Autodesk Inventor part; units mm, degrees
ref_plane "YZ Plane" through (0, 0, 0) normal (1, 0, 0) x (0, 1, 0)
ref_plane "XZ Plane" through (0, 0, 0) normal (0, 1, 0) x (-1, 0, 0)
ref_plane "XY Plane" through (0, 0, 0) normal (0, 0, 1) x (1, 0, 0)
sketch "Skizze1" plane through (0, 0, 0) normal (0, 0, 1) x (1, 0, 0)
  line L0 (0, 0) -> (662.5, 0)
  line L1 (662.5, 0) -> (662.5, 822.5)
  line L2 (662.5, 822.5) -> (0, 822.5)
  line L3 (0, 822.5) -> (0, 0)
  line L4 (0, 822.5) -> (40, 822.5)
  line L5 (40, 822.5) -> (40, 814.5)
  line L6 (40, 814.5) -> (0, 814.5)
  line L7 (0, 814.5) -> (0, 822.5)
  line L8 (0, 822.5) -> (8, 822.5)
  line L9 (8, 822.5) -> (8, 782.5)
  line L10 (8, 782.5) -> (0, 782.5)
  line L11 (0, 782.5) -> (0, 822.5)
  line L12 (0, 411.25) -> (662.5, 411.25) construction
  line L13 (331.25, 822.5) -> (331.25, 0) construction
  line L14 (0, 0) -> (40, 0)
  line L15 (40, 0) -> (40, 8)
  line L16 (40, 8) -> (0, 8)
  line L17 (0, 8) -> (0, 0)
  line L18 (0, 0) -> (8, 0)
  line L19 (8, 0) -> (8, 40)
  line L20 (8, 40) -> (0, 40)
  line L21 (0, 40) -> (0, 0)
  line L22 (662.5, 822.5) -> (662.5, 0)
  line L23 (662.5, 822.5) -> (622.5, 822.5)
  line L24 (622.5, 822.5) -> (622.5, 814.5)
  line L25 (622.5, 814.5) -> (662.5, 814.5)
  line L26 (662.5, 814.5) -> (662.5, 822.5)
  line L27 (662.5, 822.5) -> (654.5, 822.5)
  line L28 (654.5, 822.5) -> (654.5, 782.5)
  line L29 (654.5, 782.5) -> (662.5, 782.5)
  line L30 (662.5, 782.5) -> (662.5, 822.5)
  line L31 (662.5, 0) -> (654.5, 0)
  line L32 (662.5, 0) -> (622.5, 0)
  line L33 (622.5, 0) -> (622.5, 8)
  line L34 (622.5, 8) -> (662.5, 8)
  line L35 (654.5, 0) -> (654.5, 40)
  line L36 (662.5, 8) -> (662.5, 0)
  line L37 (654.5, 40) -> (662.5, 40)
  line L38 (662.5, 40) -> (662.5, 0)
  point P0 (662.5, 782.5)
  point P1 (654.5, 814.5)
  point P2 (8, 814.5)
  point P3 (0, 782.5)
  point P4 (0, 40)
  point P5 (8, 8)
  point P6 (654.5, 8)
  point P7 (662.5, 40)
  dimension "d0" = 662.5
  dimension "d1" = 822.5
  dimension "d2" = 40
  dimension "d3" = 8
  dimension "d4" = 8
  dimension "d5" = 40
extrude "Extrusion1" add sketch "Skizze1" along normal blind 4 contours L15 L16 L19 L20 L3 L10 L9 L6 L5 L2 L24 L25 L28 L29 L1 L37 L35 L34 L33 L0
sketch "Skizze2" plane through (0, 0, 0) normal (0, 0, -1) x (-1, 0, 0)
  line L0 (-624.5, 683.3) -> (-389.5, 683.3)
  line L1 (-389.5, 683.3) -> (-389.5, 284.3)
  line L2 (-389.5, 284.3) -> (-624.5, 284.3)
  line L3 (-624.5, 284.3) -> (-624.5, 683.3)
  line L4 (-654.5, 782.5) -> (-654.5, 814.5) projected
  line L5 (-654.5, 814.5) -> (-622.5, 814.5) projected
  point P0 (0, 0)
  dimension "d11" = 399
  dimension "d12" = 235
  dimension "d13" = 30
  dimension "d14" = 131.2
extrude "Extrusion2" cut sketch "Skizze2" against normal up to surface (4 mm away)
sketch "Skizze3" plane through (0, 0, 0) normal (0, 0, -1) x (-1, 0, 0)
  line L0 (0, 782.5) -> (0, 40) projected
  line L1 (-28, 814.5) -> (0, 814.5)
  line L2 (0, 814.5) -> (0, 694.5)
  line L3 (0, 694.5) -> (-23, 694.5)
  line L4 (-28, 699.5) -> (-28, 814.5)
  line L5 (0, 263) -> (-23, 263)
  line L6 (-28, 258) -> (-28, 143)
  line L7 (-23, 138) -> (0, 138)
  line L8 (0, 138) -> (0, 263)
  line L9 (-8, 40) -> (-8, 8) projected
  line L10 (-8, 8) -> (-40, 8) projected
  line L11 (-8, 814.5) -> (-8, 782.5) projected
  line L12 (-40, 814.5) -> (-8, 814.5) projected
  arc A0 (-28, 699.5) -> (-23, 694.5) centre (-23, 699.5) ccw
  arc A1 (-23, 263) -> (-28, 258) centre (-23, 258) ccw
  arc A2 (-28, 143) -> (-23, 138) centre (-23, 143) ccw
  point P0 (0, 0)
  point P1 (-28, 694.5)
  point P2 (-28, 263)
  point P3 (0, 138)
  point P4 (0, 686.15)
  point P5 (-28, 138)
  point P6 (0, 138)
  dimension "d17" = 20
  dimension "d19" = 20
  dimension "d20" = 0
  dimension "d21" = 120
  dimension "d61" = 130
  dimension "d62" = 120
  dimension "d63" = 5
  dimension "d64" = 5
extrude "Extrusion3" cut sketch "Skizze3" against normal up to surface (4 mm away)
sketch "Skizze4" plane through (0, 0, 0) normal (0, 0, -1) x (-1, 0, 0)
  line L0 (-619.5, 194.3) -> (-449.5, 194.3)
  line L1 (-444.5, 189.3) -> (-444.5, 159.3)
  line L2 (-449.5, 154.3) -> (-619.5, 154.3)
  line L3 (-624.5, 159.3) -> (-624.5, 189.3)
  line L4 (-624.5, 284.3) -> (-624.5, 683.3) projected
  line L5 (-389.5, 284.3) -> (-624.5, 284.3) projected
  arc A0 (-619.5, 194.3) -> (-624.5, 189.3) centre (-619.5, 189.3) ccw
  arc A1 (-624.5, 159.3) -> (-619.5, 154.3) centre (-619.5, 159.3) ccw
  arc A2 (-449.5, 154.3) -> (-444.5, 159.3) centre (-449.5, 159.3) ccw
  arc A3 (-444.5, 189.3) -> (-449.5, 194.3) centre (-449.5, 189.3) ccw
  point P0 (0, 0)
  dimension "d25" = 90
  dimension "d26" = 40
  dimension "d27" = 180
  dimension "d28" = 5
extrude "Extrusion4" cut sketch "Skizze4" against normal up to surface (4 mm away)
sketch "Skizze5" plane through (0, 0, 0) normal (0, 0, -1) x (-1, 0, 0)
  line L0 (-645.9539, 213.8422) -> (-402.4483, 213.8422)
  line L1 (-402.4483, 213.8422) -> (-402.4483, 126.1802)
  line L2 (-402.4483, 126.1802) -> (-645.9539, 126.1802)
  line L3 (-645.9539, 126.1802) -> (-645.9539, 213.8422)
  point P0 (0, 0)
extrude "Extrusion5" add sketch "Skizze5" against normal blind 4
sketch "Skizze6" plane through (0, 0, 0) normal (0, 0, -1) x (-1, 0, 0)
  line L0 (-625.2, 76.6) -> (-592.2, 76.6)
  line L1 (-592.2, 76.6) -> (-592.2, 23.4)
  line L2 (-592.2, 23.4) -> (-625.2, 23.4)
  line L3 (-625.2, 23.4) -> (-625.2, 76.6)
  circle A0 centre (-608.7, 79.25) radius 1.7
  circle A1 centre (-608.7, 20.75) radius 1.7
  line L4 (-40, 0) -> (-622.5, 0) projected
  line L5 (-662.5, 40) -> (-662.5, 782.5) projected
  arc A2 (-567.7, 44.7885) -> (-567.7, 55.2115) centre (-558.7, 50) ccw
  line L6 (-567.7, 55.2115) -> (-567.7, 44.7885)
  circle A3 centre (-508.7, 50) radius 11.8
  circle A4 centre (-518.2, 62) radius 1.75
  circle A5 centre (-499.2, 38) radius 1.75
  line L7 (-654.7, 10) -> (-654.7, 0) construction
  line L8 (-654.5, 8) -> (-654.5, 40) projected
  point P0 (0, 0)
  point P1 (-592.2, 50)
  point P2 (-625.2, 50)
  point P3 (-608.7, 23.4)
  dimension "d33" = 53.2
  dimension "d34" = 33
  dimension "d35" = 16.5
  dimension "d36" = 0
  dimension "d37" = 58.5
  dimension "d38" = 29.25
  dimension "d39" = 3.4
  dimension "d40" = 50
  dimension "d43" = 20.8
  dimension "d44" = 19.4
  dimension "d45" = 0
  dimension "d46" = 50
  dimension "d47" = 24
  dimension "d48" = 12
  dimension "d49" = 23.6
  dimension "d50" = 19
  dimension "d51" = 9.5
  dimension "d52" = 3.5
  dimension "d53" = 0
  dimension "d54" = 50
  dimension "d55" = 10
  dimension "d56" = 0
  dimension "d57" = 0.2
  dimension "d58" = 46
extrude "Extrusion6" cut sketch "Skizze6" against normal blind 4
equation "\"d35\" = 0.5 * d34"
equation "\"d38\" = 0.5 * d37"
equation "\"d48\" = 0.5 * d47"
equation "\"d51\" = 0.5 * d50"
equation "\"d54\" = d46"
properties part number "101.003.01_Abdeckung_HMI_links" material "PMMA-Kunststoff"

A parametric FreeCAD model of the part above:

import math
import FreeCAD as App
import Part
import Sketcher

V = App.Vector
Q = App.Units.Quantity

doc = App.newDocument("Part")
params = doc.addObject("Spreadsheet::Sheet", "Params")
for row, (alias, value) in enumerate([
    ("sketch1_width", "8 mm"),
    ("pad1_length", "4 mm"),
    ("sketch2_width", "235 mm"),
    ("sketch2_height", "399 mm"),
    ("pocket1_length", "4 mm"),
    ("sketch3_radius", "5 mm"),
    ("sketch3_height", "120 mm"),
    ("sketch3_width", "23 mm"),
    ("pocket2_length", "4 mm"),
    ("sketch4_radius", "5 mm"),
    ("sketch4_width", "170 mm"),
    ("pocket3_length", "4 mm"),
    ("pad2_length", "4 mm"),
    ("sketch6_diameter", "3.4 mm"),
    ("sketch6_diameter2", "23.6 mm"),
    ("sketch6_diameter3", "3.5 mm"),
    ("sketch6_radius", "10.4 mm"),
    ("sketch6_width", "33 mm"),
    ("pocket4_length", "4 mm"),
], start=1):
    params.set(f"A{row}", alias)
    params.set(f"B{row}", "=" + value)
    params.setAlias(f"B{row}", alias)

body = doc.addObject("PartDesign::Body", "Body")

# Sketch on XY plane
sketch1 = body.newObject("Sketcher::SketchObject", "Sketch")
sketch1.AttachmentSupport = (doc.getObject("XY_Plane"), [""])
sketch1.MapMode = "FlatFace"
sketch1.addGeometry([
    Part.LineSegment(V(40, 8, 0), V(40, 0, 0)),  # 0
    Part.LineSegment(V(40, 0, 0), V(622, 0, 0)),  # 1
    Part.LineSegment(V(622, 0, 0), V(622, 8, 0)),  # 2
    Part.LineSegment(V(622, 8, 0), V(654, 8, 0)),  # 3
    Part.LineSegment(V(654, 8, 0), V(654, 40, 0)),  # 4
    Part.LineSegment(V(654, 40, 0), V(662, 40, 0)),  # 5
    Part.LineSegment(V(662, 40, 0), V(662, 782, 0)),  # 6
    Part.LineSegment(V(662, 782, 0), V(654, 782, 0)),  # 7
    Part.LineSegment(V(654, 782, 0), V(654, 814, 0)),  # 8
    Part.LineSegment(V(654, 814, 0), V(622, 814, 0)),  # 9
    Part.LineSegment(V(622, 814, 0), V(622, 822, 0)),  # 10
    Part.LineSegment(V(622, 822, 0), V(40, 822, 0)),  # 11
    Part.LineSegment(V(40, 822, 0), V(40, 814, 0)),  # 12
    Part.LineSegment(V(40, 814, 0), V(8, 814, 0)),  # 13
    Part.LineSegment(V(8, 814, 0), V(8, 782, 0)),  # 14
    Part.LineSegment(V(8, 782, 0), V(0, 782, 0)),  # 15
    Part.LineSegment(V(0, 782, 0), V(0, 40, 0)),  # 16
    Part.LineSegment(V(0, 40, 0), V(8, 40, 0)),  # 17
    Part.LineSegment(V(8, 40, 0), V(8, 8, 0)),  # 18
    Part.LineSegment(V(8, 8, 0), V(40, 8, 0)),  # 19
], False)
sketch1.addConstraint([
    Sketcher.Constraint("Coincident", 0, 2, 1, 1),
    Sketcher.Constraint("Coincident", 1, 2, 2, 1),
    Sketcher.Constraint("Coincident", 2, 2, 3, 1),
    Sketcher.Constraint("Coincident", 3, 2, 4, 1),
    Sketcher.Constraint("Coincident", 4, 2, 5, 1),
    Sketcher.Constraint("Coincident", 5, 2, 6, 1),
    Sketcher.Constraint("Coincident", 6, 2, 7, 1),
    Sketcher.Constraint("Coincident", 7, 2, 8, 1),
    Sketcher.Constraint("Coincident", 8, 2, 9, 1),
    Sketcher.Constraint("Coincident", 9, 2, 10, 1),
    Sketcher.Constraint("Coincident", 10, 2, 11, 1),
    Sketcher.Constraint("Coincident", 11, 2, 12, 1),
    Sketcher.Constraint("Coincident", 12, 2, 13, 1),
    Sketcher.Constraint("Coincident", 13, 2, 14, 1),
    Sketcher.Constraint("Coincident", 14, 2, 15, 1),
    Sketcher.Constraint("Coincident", 15, 2, 16, 1),
    Sketcher.Constraint("Coincident", 16, 2, 17, 1),
    Sketcher.Constraint("Coincident", 17, 2, 18, 1),
    Sketcher.Constraint("Coincident", 18, 2, 19, 1),
    Sketcher.Constraint("Coincident", 19, 2, 0, 1),
    Sketcher.Constraint("Vertical", 0),
    Sketcher.Constraint("Horizontal", 1),
    Sketcher.Constraint("Vertical", 2),
    Sketcher.Constraint("Horizontal", 3),
    Sketcher.Constraint("Vertical", 4),
    Sketcher.Constraint("Horizontal", 5),
    Sketcher.Constraint("Vertical", 6),
    Sketcher.Constraint("Horizontal", 7),
    Sketcher.Constraint("Vertical", 8),
    Sketcher.Constraint("Horizontal", 9),
    Sketcher.Constraint("Vertical", 10),
    Sketcher.Constraint("Horizontal", 11),
    Sketcher.Constraint("Vertical", 12),
    Sketcher.Constraint("Horizontal", 13),
    Sketcher.Constraint("Vertical", 14),
    Sketcher.Constraint("Horizontal", 15),
    Sketcher.Constraint("Vertical", 16),
    Sketcher.Constraint("Horizontal", 17),
    Sketcher.Constraint("Vertical", 18),
    Sketcher.Constraint("Horizontal", 19),
    Sketcher.Constraint("PointOnObject", 0, 2, -1),
    Sketcher.Constraint("PointOnObject", 15, 2, -2),
    Sketcher.Constraint("Horizontal", 9, 2, 12, 2),
    Sketcher.Constraint("Horizontal", 7, 2, 14, 2),
    Sketcher.Constraint("Horizontal", 5, 2, 16, 2),
    Sketcher.Constraint("Horizontal", 3, 2, 18, 2),
    Sketcher.Constraint("Vertical", 4, 2, 7, 2),
    Sketcher.Constraint("Vertical", 2, 2, 9, 2),
    Sketcher.Constraint("Vertical", 0, 2, 11, 2),
    Sketcher.Constraint("Vertical", 14, 2, 17, 2),
    Sketcher.Constraint("Equal", 9, 13),
    Sketcher.Constraint("Equal", 7, 15),
    Sketcher.Constraint("Equal", 17, 0),
    Sketcher.Constraint("Equal", 19, 4),
    Sketcher.Constraint("Equal", 4, 8),
    Sketcher.Constraint("Equal", 2, 10),
    Sketcher.Constraint("DistanceX", 5, 1, 5, 2, Q("8 mm")),
    Sketcher.Constraint("DistanceX", -1, 1, 0, 2, Q("40 mm")),
    Sketcher.Constraint("DistanceX", -1, 1, 5, 2, Q("662.5 mm")),
    Sketcher.Constraint("DistanceY", -1, 1, 10, 2, Q("822.5 mm")),
])
sketch1.setExpression("Constraints[56]", "Params.sketch1_width")
pad1 = body.newObject("PartDesign::Pad", "Pad")
pad1.Profile = sketch1
pad1.setExpression("Length", "Params.pad1_length")

# Sketch on XY plane
sketch2 = body.newObject("Sketcher::SketchObject", "Sketch001")
sketch2.AttachmentSupport = (doc.getObject("XY_Plane"), [""])
sketch2.MapMode = "FlatFace"
sketch2.addGeometry([
    Part.LineSegment(V(390, 683, 0), V(624, 683, 0)),
    Part.LineSegment(V(624, 683, 0), V(624, 284, 0)),
    Part.LineSegment(V(624, 284, 0), V(390, 284, 0)),
    Part.LineSegment(V(390, 284, 0), V(390, 683, 0)),
], False)
sketch2.addConstraint([
    Sketcher.Constraint("Coincident", 0, 2, 1, 1),
    Sketcher.Constraint("Coincident", 1, 2, 2, 1),
    Sketcher.Constraint("Coincident", 2, 2, 3, 1),
    Sketcher.Constraint("Coincident", 3, 2, 0, 1),
    Sketcher.Constraint("Horizontal", 0),
    Sketcher.Constraint("Vertical", 1),
    Sketcher.Constraint("Horizontal", 2),
    Sketcher.Constraint("Vertical", 3),
    Sketcher.Constraint("DistanceX", 0, 1, 0, 2, Q("235 mm")),
    Sketcher.Constraint("DistanceY", 1, 2, 1, 1, Q("399 mm")),
    Sketcher.Constraint("DistanceX", -1, 1, 0, 2, Q("624.5 mm")),
    Sketcher.Constraint("DistanceY", -1, 1, 0, 2, Q("683.3 mm")),
])
sketch2.setExpression("Constraints[8]", "Params.sketch2_width")
sketch2.setExpression("Constraints[9]", "Params.sketch2_height")
pocket1 = body.newObject("PartDesign::Pocket", "Pocket")
pocket1.Profile = sketch2
pocket1.setExpression("Length", "Params.pocket1_length")
pocket1.Reversed = True

# Sketch on XY plane
sketch3 = body.newObject("Sketcher::SketchObject", "Sketch002")
sketch3.AttachmentSupport = (doc.getObject("XY_Plane"), [""])
sketch3.MapMode = "FlatFace"
sketch3.addGeometry([
    Part.LineSegment(V(0, 138, 0), V(0, 263, 0)),  # 0
    Part.LineSegment(V(0, 263, 0), V(23, 263, 0)),  # 1
    Part.ArcOfCircle(Part.Circle(V(23, 258, 0), V(0, 0, 1), 5), math.radians(0), math.radians(90)),  # 2
    Part.LineSegment(V(28, 258, 0), V(28, 143, 0)),  # 3
    Part.ArcOfCircle(Part.Circle(V(23, 143, 0), V(0, 0, 1), 5), math.radians(-90), math.radians(0)),  # 4
    Part.LineSegment(V(23, 138, 0), V(0, 138, 0)),  # 5
    Part.LineSegment(V(0, 694, 0), V(0, 814, 0)),  # 6
    Part.LineSegment(V(0, 814, 0), V(28, 814, 0)),  # 7
    Part.LineSegment(V(28, 814, 0), V(28, 700, 0)),  # 8
    Part.ArcOfCircle(Part.Circle(V(23, 700, 0), V(0, 0, 1), 5), math.radians(-90), math.radians(0)),  # 9
    Part.LineSegment(V(23, 694, 0), V(0, 694, 0)),  # 10
], False)
sketch3.addConstraint([
    Sketcher.Constraint("Coincident", 0, 2, 1, 1),
    Sketcher.Constraint("Tangent", 1, 2, 2, 2),
    Sketcher.Constraint("Tangent", 2, 1, 3, 1),
    Sketcher.Constraint("Tangent", 3, 2, 4, 2),
    Sketcher.Constraint("Tangent", 4, 1, 5, 1),
    Sketcher.Constraint("Coincident", 5, 2, 0, 1),
    Sketcher.Constraint("Coincident", 6, 2, 7, 1),
    Sketcher.Constraint("Coincident", 7, 2, 8, 1),
    Sketcher.Constraint("Tangent", 8, 2, 9, 2),
    Sketcher.Constraint("Tangent", 9, 1, 10, 1),
    Sketcher.Constraint("Coincident", 10, 2, 6, 1),
    Sketcher.Constraint("Vertical", 0),
    Sketcher.Constraint("Horizontal", 1),
    Sketcher.Constraint("Vertical", 3),
    Sketcher.Constraint("Horizontal", 5),
    Sketcher.Constraint("Vertical", 6),
    Sketcher.Constraint("Horizontal", 7),
    Sketcher.Constraint("Vertical", 8),
    Sketcher.Constraint("Horizontal", 10),
    Sketcher.Constraint("Equal", 2, 4),
    Sketcher.Constraint("Equal", 4, 9),
    Sketcher.Constraint("PointOnObject", 0, 2, -2),
    Sketcher.Constraint("PointOnObject", 6, 2, -2),
    Sketcher.Constraint("Vertical", 4, 3, 9, 3),
    Sketcher.Constraint("Equal", 3, 8),
    Sketcher.Constraint("Radius", 2, Q("5 mm")),
    Sketcher.Constraint("DistanceY", 6, 1, 6, 2, Q("120 mm")),
    Sketcher.Constraint("DistanceX", 1, 1, 1, 2, Q("23 mm")),
    Sketcher.Constraint("DistanceY", -1, 1, 2, 3, Q("258 mm")),
    Sketcher.Constraint("DistanceY", -1, 1, 9, 3, Q("699.5 mm")),
])
sketch3.setExpression("Constraints[25]", "Params.sketch3_radius")
sketch3.setExpression("Constraints[26]", "Params.sketch3_height")
sketch3.setExpression("Constraints[27]", "Params.sketch3_width")
pocket2 = body.newObject("PartDesign::Pocket", "Pocket001")
pocket2.Profile = sketch3
pocket2.setExpression("Length", "Params.pocket2_length")
pocket2.Reversed = True

# Sketch on XY plane
sketch4 = body.newObject("Sketcher::SketchObject", "Sketch003")
sketch4.AttachmentSupport = (doc.getObject("XY_Plane"), [""])
sketch4.MapMode = "FlatFace"
sketch4.addGeometry([
    Part.LineSegment(V(450, 194, 0), V(620, 194, 0)),  # 0
    Part.ArcOfCircle(Part.Circle(V(620, 189, 0), V(0, 0, 1), 5), math.radians(0), math.radians(90)),  # 1
    Part.LineSegment(V(624, 189, 0), V(624, 159, 0)),  # 2
    Part.ArcOfCircle(Part.Circle(V(620, 159, 0), V(0, 0, 1), 5), math.radians(-90), math.radians(0)),  # 3
    Part.LineSegment(V(620, 154, 0), V(450, 154, 0)),  # 4
    Part.ArcOfCircle(Part.Circle(V(450, 159, 0), V(0, 0, 1), 5), math.radians(180), math.radians(270)),  # 5
    Part.LineSegment(V(444, 159, 0), V(444, 189, 0)),  # 6
    Part.ArcOfCircle(Part.Circle(V(450, 189, 0), V(0, 0, 1), 5), math.radians(90), math.radians(180)),  # 7
], False)
sketch4.addConstraint([
    Sketcher.Constraint("Tangent", 0, 2, 1, 2),
    Sketcher.Constraint("Tangent", 1, 1, 2, 1),
    Sketcher.Constraint("Tangent", 2, 2, 3, 2),
    Sketcher.Constraint("Tangent", 3, 1, 4, 1),
    Sketcher.Constraint("Tangent", 4, 2, 5, 2),
    Sketcher.Constraint("Tangent", 5, 1, 6, 1),
    Sketcher.Constraint("Tangent", 6, 2, 7, 2),
    Sketcher.Constraint("Tangent", 7, 1, 0, 1),
    Sketcher.Constraint("Horizontal", 0),
    Sketcher.Constraint("Vertical", 2),
    Sketcher.Constraint("Horizontal", 4),
    Sketcher.Constraint("Vertical", 6),
    Sketcher.Constraint("Equal", 1, 3),
    Sketcher.Constraint("Equal", 3, 5),
    Sketcher.Constraint("Equal", 5, 7),
    Sketcher.Constraint("Radius", 1, Q("5 mm")),
    Sketcher.Constraint("DistanceY", 3, 1, 0, 2, Q("40 mm")),
    Sketcher.Constraint("DistanceX", 0, 1, 0, 2, Q("170 mm")),
    Sketcher.Constraint("DistanceX", -1, 1, 1, 3, Q("619.5 mm")),
    Sketcher.Constraint("DistanceY", -1, 1, 1, 3, Q("189.3 mm")),
])
sketch4.setExpression("Constraints[15]", "Params.sketch4_radius")
sketch4.setExpression("Constraints[17]", "Params.sketch4_width")
pocket3 = body.newObject("PartDesign::Pocket", "Pocket002")
pocket3.Profile = sketch4
pocket3.setExpression("Length", "Params.pocket3_length")
pocket3.Reversed = True

# Sketch on XY plane
sketch5 = body.newObject("Sketcher::SketchObject", "Sketch004")
sketch5.AttachmentSupport = (doc.getObject("XY_Plane"), [""])
sketch5.MapMode = "FlatFace"
sketch5.addGeometry([
    Part.LineSegment(V(402, 214, 0), V(646, 214, 0)),
    Part.LineSegment(V(646, 214, 0), V(646, 126, 0)),
    Part.LineSegment(V(646, 126, 0), V(402, 126, 0)),
    Part.LineSegment(V(402, 126, 0), V(402, 214, 0)),
], False)
sketch5.addConstraint([
    Sketcher.Constraint("Coincident", 0, 2, 1, 1),
    Sketcher.Constraint("Coincident", 1, 2, 2, 1),
    Sketcher.Constraint("Coincident", 2, 2, 3, 1),
    Sketcher.Constraint("Coincident", 3, 2, 0, 1),
    Sketcher.Constraint("Horizontal", 0),
    Sketcher.Constraint("Vertical", 1),
    Sketcher.Constraint("Horizontal", 2),
    Sketcher.Constraint("Vertical", 3),
    Sketcher.Constraint("DistanceY", 1, 2, 1, 1, Q("87.662 mm")),
    Sketcher.Constraint("DistanceX", 0, 1, 0, 2, Q("243.5056 mm")),
    Sketcher.Constraint("DistanceX", -1, 1, 0, 2, Q("645.954 mm")),
    Sketcher.Constraint("DistanceY", -1, 1, 0, 2, Q("213.8422 mm")),
])
pad2 = body.newObject("PartDesign::Pad", "Pad001")
pad2.Profile = sketch5
pad2.setExpression("Length", "Params.pad2_length")

# Sketch on XY plane
sketch6 = body.newObject("Sketcher::SketchObject", "Sketch005")
sketch6.AttachmentSupport = (doc.getObject("XY_Plane"), [""])
sketch6.MapMode = "FlatFace"
sketch6.addGeometry([
    Part.LineSegment(V(592.2, 76.6, 0), V(625.2, 76.6, 0)),  # 0
    Part.LineSegment(V(625.2, 76.6, 0), V(625.2, 23.4, 0)),  # 1
    Part.LineSegment(V(625.2, 23.4, 0), V(592.2, 23.4, 0)),  # 2
    Part.LineSegment(V(592.2, 23.4, 0), V(592.2, 76.6, 0)),  # 3
    Part.Circle(V(608.7, 79.2, 0), V(0, 0, 1), 1.7),  # 4
    Part.Circle(V(608.7, 20.8, 0), V(0, 0, 1), 1.7),  # 5
    Part.LineSegment(V(567.7, 55.2, 0), V(567.7, 44.8, 0)),  # 6
    Part.ArcOfCircle(Part.Circle(V(558.7, 50, 0), V(0, 0, 1), 10.4), math.radians(30), math.radians(330)),  # 7
    Part.Circle(V(508.7, 50, 0), V(0, 0, 1), 11.8),  # 8
    Part.Circle(V(518.2, 62, 0), V(0, 0, 1), 1.8),  # 9
    Part.Circle(V(499.2, 38, 0), V(0, 0, 1), 1.8),  # 10
], False)
sketch6.addConstraint([
    Sketcher.Constraint("Coincident", 0, 2, 1, 1),
    Sketcher.Constraint("Coincident", 1, 2, 2, 1),
    Sketcher.Constraint("Coincident", 2, 2, 3, 1),
    Sketcher.Constraint("Coincident", 3, 2, 0, 1),
    Sketcher.Constraint("Coincident", 6, 1, 7, 1),
    Sketcher.Constraint("Coincident", 7, 2, 6, 2),
    Sketcher.Constraint("Horizontal", 0),
    Sketcher.Constraint("Vertical", 1),
    Sketcher.Constraint("Horizontal", 2),
    Sketcher.Constraint("Vertical", 3),
    Sketcher.Constraint("Vertical", 6),
    Sketcher.Constraint("Equal", 4, 5),
    Sketcher.Constraint("Equal", 9, 10),
    Sketcher.Constraint("Horizontal", 7, 3, 8, 3),
    Sketcher.Constraint("Vertical", 4, 3, 5, 3),
    Sketcher.Constraint("Diameter", 4, Q("3.4 mm")),
    Sketcher.Constraint("Diameter", 8, Q("23.6 mm")),
    Sketcher.Constraint("Diameter", 9, Q("3.5 mm")),
    Sketcher.Constraint("Radius", 7, Q("10.4 mm")),
    Sketcher.Constraint("DistanceX", 0, 1, 0, 2, Q("33 mm")),
    Sketcher.Constraint("DistanceY", 1, 2, 1, 1, Q("53.2 mm")),
    Sketcher.Constraint("DistanceY", -1, 1, 7, 3, Q("50 mm")),
    Sketcher.Constraint("DistanceX", 7, 3, 4, 3, Q("50 mm")),
    Sketcher.Constraint("DistanceX", 8, 3, 7, 3, Q("50 mm")),
    Sketcher.Constraint("DistanceY", 8, 3, 9, 3, Q("12 mm")),
    Sketcher.Constraint("DistanceY", 10, 3, 8, 3, Q("12 mm")),
    Sketcher.Constraint("DistanceX", 10, 3, 9, 3, Q("19 mm")),
    Sketcher.Constraint("DistanceY", 5, 3, 4, 3, Q("58.5 mm")),
    Sketcher.Constraint("DistanceX", 8, 3, 9, 3, Q("9.5 mm")),
    Sketcher.Constraint("DistanceX", 4, 3, 0, 2, Q("16.5 mm")),
    Sketcher.Constraint("DistanceY", 7, 3, 4, 3, Q("29.25 mm")),
    Sketcher.Constraint("DistanceX", 7, 3, 6, 1, Q("9 mm")),
    Sketcher.Constraint("DistanceX", -1, 1, 4, 3, Q("608.7 mm")),
    Sketcher.Constraint("DistanceY", -1, 1, 0, 2, Q("76.6 mm")),
])
sketch6.setExpression("Constraints[15]", "Params.sketch6_diameter")
sketch6.setExpression("Constraints[16]", "Params.sketch6_diameter2")
sketch6.setExpression("Constraints[17]", "Params.sketch6_diameter3")
sketch6.setExpression("Constraints[18]", "Params.sketch6_radius")
sketch6.setExpression("Constraints[19]", "Params.sketch6_width")
pocket4 = body.newObject("PartDesign::Pocket", "Pocket003")
pocket4.Profile = sketch6
pocket4.setExpression("Length", "Params.pocket4_length")
pocket4.Reversed = True

doc.recompute()
